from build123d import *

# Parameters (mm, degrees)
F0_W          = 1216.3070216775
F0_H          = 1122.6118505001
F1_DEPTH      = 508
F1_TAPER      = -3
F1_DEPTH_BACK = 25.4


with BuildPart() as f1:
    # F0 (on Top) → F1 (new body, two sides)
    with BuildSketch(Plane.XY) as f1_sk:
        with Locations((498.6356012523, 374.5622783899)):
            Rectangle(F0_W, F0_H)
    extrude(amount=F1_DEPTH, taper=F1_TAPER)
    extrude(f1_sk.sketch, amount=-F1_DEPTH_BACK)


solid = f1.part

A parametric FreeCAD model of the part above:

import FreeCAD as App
import Part
import Sketcher
from FreeCAD import Vector
Q = App.Units.Quantity

doc = App.newDocument("Part")
body = doc.addObject("PartDesign::Body", "Body")

# Sketch on XY plane
sketch1 = doc.addObject("Sketcher::SketchObject", "Sketch")
body.addObject(sketch1)
sketch1.AttachmentSupport = (doc.XY_Plane, [""])
sketch1.MapMode = "FlatFace"
sketch1.addGeometry([
    Part.LineSegment(Vector(-110, 936, 0), Vector(-110, -187, 0)),
    Part.LineSegment(Vector(-110, -187, 0), Vector(1107, -187, 0)),
    Part.LineSegment(Vector(1107, -187, 0), Vector(1107, 936, 0)),
    Part.LineSegment(Vector(1107, 936, 0), Vector(-110, 936, 0)),
], False)
sketch1.addConstraint([
    Sketcher.Constraint("Coincident", 0, 2, 1, 1),
    Sketcher.Constraint("Coincident", 1, 2, 2, 1),
    Sketcher.Constraint("Coincident", 2, 2, 3, 1),
    Sketcher.Constraint("Coincident", 3, 2, 0, 1),
    Sketcher.Constraint("Vertical", 0),
    Sketcher.Constraint("Horizontal", 1),
    Sketcher.Constraint("Vertical", 2),
    Sketcher.Constraint("Horizontal", 3),
    Sketcher.Constraint("DistanceX", 1, 1, 1, 2, Q("1216.307022 mm")),
    Sketcher.Constraint("DistanceY", 0, 2, 0, 1, Q("1122.61185 mm")),
    Sketcher.Constraint("DistanceX", 0, 2, -1, 1, Q("109.51791 mm")),
    Sketcher.Constraint("DistanceY", 0, 2, -1, 1, Q("186.743647 mm")),
])
pad1 = doc.addObject("PartDesign::Pad", "Pad")
body.addObject(pad1)
pad1.Profile = sketch1
pad1.Length = Q("20 in")
pad1.TaperAngle = 3
pad2 = doc.addObject("PartDesign::Pad", "Pad001")
body.addObject(pad2)
pad2.Profile = sketch1
pad2.Length = Q("1 in")
pad2.Reversed = True

doc.recompute()
